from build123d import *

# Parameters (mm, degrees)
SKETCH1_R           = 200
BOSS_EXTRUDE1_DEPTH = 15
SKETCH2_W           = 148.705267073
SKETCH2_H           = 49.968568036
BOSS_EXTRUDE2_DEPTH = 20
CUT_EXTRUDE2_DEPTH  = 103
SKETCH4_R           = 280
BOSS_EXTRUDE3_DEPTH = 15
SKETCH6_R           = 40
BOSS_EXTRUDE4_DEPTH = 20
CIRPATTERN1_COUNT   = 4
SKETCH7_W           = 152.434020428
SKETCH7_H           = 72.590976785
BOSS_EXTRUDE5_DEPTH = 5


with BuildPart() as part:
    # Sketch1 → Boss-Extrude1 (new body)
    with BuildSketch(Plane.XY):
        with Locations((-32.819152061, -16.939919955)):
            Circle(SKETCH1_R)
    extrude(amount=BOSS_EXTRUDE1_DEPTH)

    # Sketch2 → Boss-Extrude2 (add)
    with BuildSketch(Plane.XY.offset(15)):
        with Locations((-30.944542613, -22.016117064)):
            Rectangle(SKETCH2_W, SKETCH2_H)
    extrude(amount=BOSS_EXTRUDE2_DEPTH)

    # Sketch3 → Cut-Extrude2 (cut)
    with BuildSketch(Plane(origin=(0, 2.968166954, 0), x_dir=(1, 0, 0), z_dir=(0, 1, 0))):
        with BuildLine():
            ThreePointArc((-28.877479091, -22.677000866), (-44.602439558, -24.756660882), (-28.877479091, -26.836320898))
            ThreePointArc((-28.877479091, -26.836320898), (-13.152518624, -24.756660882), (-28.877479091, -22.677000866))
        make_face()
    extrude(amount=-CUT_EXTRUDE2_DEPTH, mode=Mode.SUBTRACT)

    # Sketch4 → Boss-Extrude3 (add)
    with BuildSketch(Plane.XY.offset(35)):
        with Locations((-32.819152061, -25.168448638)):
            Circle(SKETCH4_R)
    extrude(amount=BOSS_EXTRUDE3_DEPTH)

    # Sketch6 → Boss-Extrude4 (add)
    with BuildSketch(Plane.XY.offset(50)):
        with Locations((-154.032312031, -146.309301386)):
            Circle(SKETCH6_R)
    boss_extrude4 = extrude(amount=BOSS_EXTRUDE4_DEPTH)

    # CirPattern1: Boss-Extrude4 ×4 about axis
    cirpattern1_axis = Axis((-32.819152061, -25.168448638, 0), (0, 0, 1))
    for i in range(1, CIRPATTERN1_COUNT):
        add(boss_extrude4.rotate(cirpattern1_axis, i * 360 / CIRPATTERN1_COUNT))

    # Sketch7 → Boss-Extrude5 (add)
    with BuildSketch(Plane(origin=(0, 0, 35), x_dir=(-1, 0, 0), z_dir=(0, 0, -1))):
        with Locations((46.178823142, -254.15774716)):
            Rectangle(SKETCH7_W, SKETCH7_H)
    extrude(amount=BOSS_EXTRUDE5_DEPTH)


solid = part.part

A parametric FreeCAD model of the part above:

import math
import FreeCAD as App
import Part
import Sketcher


def add_polygon(sketch, points):
    """Adds a closed chain of lines whose ends are joined by coincident constraints."""
    first, n = sketch.GeometryCount, len(points)
    for a, b in zip(points, points[1:] + points[:1]):
        sketch.addGeometry(Part.LineSegment(App.Vector(*a, 0), App.Vector(*b, 0)), False)
    for i in range(n):
        sketch.addConstraint(Sketcher.Constraint("Coincident", first + i, 2, first + (i + 1) % n, 1))

doc = App.newDocument("Part")
body = doc.addObject("PartDesign::Body", "Body")

# Sketch on XY plane
sketch1 = doc.addObject("Sketcher::SketchObject", "Sketch")
body.addObject(sketch1)
sketch1.AttachmentSupport = (doc.XY_Plane, [""])
sketch1.MapMode = "FlatFace"
sketch1.addGeometry(Part.Circle(App.Vector(-32.819152, -16.93992, 0), App.Vector(0, 0, 1), 200), False)
sketch1.addConstraint([
    Sketcher.Constraint("Diameter", 0, 400.0),
    Sketcher.Constraint("DistanceY", 0, 3, -1, 1, 16.93992),
    Sketcher.Constraint("DistanceX", 0, 3, -1, 1, 32.819152),
])
pad1 = doc.addObject("PartDesign::Pad", "Pad")
body.addObject(pad1)
pad1.Profile = sketch1
pad1.Length = 15

# Sketch on XY plane
sketch2 = doc.addObject("Sketcher::SketchObject", "Sketch001")
body.addObject(sketch2)
sketch2.AttachmentSupport = (doc.XY_Plane, [""])
sketch2.MapMode = "FlatFace"
sketch2.AttachmentOffset = App.Placement(App.Vector(0, 0, 15), App.Rotation())
add_polygon(sketch2, [(-105.297176, 2.968167), (-105.297176, -47.000401), (43.408091, -47.000401), (43.408091, 2.968167)])  # lines 0-3
sketch2.addConstraint([
    Sketcher.Constraint("Vertical", 0),
    Sketcher.Constraint("Horizontal", 1),
    Sketcher.Constraint("Vertical", 2),
    Sketcher.Constraint("Horizontal", 3),
    Sketcher.Constraint("DistanceY", 0, 2, 0, 1, 49.968568),
    Sketcher.Constraint("DistanceY", 0, 2, -1, 1, 47.000401),
    Sketcher.Constraint("DistanceX", 1, 1, 1, 2, 148.705267),
    Sketcher.Constraint("DistanceX", -1, 1, 1, 2, 43.408091),
])
pad2 = doc.addObject("PartDesign::Pad", "Pad001")
body.addObject(pad2)
pad2.Profile = sketch2
pad2.Length = 20

# Sketch on XZ plane
sketch3 = doc.addObject("Sketcher::SketchObject", "Sketch002")
body.addObject(sketch3)
sketch3.AttachmentSupport = (doc.XZ_Plane, [""])
sketch3.MapMode = "FlatFace"
sketch3.AttachmentOffset = App.Placement(App.Vector(0, 0, -2.968167), App.Rotation())
sketch3.addGeometry([
    Part.ArcOfCircle(Part.Circle(App.Vector(-36.60244, 24.756661, 0), App.Vector(0, 0, 1), 8), math.radians(15.06754), math.radians(344.93246)),
    Part.ArcOfCircle(Part.Circle(App.Vector(-21.152519, 24.756661, 0), App.Vector(0, 0, 1), 8), math.radians(-164.93246), math.radians(164.93246)),
], False)
sketch3.addConstraint([
    Sketcher.Constraint("Coincident", 0, 1, 1, 2),
    Sketcher.Constraint("Coincident", 1, 1, 0, 2),
    Sketcher.Constraint("Equal", 0, 1),
    Sketcher.Constraint("Horizontal", 0, 3, 1, 3),
    Sketcher.Constraint("Radius", 0, 8.0),
    Sketcher.Constraint("DistanceY", -1, 1, 1, 1, 22.677001),
    Sketcher.Constraint("DistanceX", 0, 3, -1, 1, 36.60244),
    Sketcher.Constraint("DistanceY", -1, 1, 0, 3, 24.756661),
])
pocket1 = doc.addObject("PartDesign::Pocket", "Pocket")
body.addObject(pocket1)
pocket1.Profile = sketch3
pocket1.Length = 103
pocket1.Reversed = True

# Sketch on XY plane
sketch4 = doc.addObject("Sketcher::SketchObject", "Sketch003")
body.addObject(sketch4)
sketch4.AttachmentSupport = (doc.XY_Plane, [""])
sketch4.MapMode = "FlatFace"
sketch4.AttachmentOffset = App.Placement(App.Vector(0, 0, 35), App.Rotation())
sketch4.addGeometry(Part.Circle(App.Vector(-32.819152, -25.168449, 0), App.Vector(0, 0, 1), 280), False)
sketch4.addConstraint([
    Sketcher.Constraint("Diameter", 0, 560.0),
    Sketcher.Constraint("DistanceY", 0, 3, -1, 1, 25.168449),
    Sketcher.Constraint("DistanceX", 0, 3, -1, 1, 32.819152),
])
pad3 = doc.addObject("PartDesign::Pad", "Pad002")
body.addObject(pad3)
pad3.Profile = sketch4
pad3.Length = 15

# Sketch on XY plane
sketch5 = doc.addObject("Sketcher::SketchObject", "Sketch004")
body.addObject(sketch5)
sketch5.AttachmentSupport = (doc.XY_Plane, [""])
sketch5.MapMode = "FlatFace"
sketch5.AttachmentOffset = App.Placement(App.Vector(0, 0, 50), App.Rotation())
sketch5.addGeometry(Part.Circle(App.Vector(-154.032312, -146.309301, 0), App.Vector(0, 0, 1), 40), False)
sketch5.addConstraint([
    Sketcher.Constraint("Diameter", 0, 80.0),
    Sketcher.Constraint("DistanceY", 0, 3, -1, 1, 146.309301),
    Sketcher.Constraint("DistanceX", 0, 3, -1, 1, 154.032312),
])
pad4 = doc.addObject("PartDesign::Pad", "Pad003")
body.addObject(pad4)
pad4.Profile = sketch5
pad4.Length = 20
doc.recompute()

datumline = doc.addObject("PartDesign::Line", "DatumLine")
body.addObject(datumline)
datumline.Placement = App.Placement(App.Vector(-32.819152, -25.168449, 0), App.Rotation(App.Vector(0, 0, 1), App.Vector(0, 0, 1)))
polarpattern = doc.addObject("PartDesign::PolarPattern", "PolarPattern")
body.addObject(polarpattern)
polarpattern.Originals = [pad4]
polarpattern.Axis = (datumline, [""])
polarpattern.Angle = 360
polarpattern.Occurrences = 4
body.Tip = polarpattern

# Sketch on XY plane
sketch6 = doc.addObject("Sketcher::SketchObject", "Sketch005")
body.addObject(sketch6)
sketch6.AttachmentSupport = (doc.XY_Plane, [""])
sketch6.MapMode = "FlatFace"
sketch6.AttachmentOffset = App.Placement(App.Vector(0, 0, 35), App.Rotation())
add_polygon(sketch6, [(30.038187, -217.862259), (30.038187, -290.453236), (-122.395833, -290.453236), (-122.395833, -217.862259)])  # lines 0-3
sketch6.addConstraint([
    Sketcher.Constraint("Vertical", 0),
    Sketcher.Constraint("Horizontal", 1),
    Sketcher.Constraint("Vertical", 2),
    Sketcher.Constraint("Horizontal", 3),
    Sketcher.Constraint("DistanceX", 1, 2, 1, 1, 152.43402),
    Sketcher.Constraint("DistanceY", 0, 2, 0, 1, 72.590977),
    Sketcher.Constraint("DistanceY", 2, 2, -1, 1, 217.862259),
    Sketcher.Constraint("DistanceX", -1, 1, 0, 2, 30.038187),
])
pad5 = doc.addObject("PartDesign::Pad", "Pad004")
body.addObject(pad5)
pad5.Profile = sketch6
pad5.Length = 5
pad5.Reversed = True

doc.recompute()
